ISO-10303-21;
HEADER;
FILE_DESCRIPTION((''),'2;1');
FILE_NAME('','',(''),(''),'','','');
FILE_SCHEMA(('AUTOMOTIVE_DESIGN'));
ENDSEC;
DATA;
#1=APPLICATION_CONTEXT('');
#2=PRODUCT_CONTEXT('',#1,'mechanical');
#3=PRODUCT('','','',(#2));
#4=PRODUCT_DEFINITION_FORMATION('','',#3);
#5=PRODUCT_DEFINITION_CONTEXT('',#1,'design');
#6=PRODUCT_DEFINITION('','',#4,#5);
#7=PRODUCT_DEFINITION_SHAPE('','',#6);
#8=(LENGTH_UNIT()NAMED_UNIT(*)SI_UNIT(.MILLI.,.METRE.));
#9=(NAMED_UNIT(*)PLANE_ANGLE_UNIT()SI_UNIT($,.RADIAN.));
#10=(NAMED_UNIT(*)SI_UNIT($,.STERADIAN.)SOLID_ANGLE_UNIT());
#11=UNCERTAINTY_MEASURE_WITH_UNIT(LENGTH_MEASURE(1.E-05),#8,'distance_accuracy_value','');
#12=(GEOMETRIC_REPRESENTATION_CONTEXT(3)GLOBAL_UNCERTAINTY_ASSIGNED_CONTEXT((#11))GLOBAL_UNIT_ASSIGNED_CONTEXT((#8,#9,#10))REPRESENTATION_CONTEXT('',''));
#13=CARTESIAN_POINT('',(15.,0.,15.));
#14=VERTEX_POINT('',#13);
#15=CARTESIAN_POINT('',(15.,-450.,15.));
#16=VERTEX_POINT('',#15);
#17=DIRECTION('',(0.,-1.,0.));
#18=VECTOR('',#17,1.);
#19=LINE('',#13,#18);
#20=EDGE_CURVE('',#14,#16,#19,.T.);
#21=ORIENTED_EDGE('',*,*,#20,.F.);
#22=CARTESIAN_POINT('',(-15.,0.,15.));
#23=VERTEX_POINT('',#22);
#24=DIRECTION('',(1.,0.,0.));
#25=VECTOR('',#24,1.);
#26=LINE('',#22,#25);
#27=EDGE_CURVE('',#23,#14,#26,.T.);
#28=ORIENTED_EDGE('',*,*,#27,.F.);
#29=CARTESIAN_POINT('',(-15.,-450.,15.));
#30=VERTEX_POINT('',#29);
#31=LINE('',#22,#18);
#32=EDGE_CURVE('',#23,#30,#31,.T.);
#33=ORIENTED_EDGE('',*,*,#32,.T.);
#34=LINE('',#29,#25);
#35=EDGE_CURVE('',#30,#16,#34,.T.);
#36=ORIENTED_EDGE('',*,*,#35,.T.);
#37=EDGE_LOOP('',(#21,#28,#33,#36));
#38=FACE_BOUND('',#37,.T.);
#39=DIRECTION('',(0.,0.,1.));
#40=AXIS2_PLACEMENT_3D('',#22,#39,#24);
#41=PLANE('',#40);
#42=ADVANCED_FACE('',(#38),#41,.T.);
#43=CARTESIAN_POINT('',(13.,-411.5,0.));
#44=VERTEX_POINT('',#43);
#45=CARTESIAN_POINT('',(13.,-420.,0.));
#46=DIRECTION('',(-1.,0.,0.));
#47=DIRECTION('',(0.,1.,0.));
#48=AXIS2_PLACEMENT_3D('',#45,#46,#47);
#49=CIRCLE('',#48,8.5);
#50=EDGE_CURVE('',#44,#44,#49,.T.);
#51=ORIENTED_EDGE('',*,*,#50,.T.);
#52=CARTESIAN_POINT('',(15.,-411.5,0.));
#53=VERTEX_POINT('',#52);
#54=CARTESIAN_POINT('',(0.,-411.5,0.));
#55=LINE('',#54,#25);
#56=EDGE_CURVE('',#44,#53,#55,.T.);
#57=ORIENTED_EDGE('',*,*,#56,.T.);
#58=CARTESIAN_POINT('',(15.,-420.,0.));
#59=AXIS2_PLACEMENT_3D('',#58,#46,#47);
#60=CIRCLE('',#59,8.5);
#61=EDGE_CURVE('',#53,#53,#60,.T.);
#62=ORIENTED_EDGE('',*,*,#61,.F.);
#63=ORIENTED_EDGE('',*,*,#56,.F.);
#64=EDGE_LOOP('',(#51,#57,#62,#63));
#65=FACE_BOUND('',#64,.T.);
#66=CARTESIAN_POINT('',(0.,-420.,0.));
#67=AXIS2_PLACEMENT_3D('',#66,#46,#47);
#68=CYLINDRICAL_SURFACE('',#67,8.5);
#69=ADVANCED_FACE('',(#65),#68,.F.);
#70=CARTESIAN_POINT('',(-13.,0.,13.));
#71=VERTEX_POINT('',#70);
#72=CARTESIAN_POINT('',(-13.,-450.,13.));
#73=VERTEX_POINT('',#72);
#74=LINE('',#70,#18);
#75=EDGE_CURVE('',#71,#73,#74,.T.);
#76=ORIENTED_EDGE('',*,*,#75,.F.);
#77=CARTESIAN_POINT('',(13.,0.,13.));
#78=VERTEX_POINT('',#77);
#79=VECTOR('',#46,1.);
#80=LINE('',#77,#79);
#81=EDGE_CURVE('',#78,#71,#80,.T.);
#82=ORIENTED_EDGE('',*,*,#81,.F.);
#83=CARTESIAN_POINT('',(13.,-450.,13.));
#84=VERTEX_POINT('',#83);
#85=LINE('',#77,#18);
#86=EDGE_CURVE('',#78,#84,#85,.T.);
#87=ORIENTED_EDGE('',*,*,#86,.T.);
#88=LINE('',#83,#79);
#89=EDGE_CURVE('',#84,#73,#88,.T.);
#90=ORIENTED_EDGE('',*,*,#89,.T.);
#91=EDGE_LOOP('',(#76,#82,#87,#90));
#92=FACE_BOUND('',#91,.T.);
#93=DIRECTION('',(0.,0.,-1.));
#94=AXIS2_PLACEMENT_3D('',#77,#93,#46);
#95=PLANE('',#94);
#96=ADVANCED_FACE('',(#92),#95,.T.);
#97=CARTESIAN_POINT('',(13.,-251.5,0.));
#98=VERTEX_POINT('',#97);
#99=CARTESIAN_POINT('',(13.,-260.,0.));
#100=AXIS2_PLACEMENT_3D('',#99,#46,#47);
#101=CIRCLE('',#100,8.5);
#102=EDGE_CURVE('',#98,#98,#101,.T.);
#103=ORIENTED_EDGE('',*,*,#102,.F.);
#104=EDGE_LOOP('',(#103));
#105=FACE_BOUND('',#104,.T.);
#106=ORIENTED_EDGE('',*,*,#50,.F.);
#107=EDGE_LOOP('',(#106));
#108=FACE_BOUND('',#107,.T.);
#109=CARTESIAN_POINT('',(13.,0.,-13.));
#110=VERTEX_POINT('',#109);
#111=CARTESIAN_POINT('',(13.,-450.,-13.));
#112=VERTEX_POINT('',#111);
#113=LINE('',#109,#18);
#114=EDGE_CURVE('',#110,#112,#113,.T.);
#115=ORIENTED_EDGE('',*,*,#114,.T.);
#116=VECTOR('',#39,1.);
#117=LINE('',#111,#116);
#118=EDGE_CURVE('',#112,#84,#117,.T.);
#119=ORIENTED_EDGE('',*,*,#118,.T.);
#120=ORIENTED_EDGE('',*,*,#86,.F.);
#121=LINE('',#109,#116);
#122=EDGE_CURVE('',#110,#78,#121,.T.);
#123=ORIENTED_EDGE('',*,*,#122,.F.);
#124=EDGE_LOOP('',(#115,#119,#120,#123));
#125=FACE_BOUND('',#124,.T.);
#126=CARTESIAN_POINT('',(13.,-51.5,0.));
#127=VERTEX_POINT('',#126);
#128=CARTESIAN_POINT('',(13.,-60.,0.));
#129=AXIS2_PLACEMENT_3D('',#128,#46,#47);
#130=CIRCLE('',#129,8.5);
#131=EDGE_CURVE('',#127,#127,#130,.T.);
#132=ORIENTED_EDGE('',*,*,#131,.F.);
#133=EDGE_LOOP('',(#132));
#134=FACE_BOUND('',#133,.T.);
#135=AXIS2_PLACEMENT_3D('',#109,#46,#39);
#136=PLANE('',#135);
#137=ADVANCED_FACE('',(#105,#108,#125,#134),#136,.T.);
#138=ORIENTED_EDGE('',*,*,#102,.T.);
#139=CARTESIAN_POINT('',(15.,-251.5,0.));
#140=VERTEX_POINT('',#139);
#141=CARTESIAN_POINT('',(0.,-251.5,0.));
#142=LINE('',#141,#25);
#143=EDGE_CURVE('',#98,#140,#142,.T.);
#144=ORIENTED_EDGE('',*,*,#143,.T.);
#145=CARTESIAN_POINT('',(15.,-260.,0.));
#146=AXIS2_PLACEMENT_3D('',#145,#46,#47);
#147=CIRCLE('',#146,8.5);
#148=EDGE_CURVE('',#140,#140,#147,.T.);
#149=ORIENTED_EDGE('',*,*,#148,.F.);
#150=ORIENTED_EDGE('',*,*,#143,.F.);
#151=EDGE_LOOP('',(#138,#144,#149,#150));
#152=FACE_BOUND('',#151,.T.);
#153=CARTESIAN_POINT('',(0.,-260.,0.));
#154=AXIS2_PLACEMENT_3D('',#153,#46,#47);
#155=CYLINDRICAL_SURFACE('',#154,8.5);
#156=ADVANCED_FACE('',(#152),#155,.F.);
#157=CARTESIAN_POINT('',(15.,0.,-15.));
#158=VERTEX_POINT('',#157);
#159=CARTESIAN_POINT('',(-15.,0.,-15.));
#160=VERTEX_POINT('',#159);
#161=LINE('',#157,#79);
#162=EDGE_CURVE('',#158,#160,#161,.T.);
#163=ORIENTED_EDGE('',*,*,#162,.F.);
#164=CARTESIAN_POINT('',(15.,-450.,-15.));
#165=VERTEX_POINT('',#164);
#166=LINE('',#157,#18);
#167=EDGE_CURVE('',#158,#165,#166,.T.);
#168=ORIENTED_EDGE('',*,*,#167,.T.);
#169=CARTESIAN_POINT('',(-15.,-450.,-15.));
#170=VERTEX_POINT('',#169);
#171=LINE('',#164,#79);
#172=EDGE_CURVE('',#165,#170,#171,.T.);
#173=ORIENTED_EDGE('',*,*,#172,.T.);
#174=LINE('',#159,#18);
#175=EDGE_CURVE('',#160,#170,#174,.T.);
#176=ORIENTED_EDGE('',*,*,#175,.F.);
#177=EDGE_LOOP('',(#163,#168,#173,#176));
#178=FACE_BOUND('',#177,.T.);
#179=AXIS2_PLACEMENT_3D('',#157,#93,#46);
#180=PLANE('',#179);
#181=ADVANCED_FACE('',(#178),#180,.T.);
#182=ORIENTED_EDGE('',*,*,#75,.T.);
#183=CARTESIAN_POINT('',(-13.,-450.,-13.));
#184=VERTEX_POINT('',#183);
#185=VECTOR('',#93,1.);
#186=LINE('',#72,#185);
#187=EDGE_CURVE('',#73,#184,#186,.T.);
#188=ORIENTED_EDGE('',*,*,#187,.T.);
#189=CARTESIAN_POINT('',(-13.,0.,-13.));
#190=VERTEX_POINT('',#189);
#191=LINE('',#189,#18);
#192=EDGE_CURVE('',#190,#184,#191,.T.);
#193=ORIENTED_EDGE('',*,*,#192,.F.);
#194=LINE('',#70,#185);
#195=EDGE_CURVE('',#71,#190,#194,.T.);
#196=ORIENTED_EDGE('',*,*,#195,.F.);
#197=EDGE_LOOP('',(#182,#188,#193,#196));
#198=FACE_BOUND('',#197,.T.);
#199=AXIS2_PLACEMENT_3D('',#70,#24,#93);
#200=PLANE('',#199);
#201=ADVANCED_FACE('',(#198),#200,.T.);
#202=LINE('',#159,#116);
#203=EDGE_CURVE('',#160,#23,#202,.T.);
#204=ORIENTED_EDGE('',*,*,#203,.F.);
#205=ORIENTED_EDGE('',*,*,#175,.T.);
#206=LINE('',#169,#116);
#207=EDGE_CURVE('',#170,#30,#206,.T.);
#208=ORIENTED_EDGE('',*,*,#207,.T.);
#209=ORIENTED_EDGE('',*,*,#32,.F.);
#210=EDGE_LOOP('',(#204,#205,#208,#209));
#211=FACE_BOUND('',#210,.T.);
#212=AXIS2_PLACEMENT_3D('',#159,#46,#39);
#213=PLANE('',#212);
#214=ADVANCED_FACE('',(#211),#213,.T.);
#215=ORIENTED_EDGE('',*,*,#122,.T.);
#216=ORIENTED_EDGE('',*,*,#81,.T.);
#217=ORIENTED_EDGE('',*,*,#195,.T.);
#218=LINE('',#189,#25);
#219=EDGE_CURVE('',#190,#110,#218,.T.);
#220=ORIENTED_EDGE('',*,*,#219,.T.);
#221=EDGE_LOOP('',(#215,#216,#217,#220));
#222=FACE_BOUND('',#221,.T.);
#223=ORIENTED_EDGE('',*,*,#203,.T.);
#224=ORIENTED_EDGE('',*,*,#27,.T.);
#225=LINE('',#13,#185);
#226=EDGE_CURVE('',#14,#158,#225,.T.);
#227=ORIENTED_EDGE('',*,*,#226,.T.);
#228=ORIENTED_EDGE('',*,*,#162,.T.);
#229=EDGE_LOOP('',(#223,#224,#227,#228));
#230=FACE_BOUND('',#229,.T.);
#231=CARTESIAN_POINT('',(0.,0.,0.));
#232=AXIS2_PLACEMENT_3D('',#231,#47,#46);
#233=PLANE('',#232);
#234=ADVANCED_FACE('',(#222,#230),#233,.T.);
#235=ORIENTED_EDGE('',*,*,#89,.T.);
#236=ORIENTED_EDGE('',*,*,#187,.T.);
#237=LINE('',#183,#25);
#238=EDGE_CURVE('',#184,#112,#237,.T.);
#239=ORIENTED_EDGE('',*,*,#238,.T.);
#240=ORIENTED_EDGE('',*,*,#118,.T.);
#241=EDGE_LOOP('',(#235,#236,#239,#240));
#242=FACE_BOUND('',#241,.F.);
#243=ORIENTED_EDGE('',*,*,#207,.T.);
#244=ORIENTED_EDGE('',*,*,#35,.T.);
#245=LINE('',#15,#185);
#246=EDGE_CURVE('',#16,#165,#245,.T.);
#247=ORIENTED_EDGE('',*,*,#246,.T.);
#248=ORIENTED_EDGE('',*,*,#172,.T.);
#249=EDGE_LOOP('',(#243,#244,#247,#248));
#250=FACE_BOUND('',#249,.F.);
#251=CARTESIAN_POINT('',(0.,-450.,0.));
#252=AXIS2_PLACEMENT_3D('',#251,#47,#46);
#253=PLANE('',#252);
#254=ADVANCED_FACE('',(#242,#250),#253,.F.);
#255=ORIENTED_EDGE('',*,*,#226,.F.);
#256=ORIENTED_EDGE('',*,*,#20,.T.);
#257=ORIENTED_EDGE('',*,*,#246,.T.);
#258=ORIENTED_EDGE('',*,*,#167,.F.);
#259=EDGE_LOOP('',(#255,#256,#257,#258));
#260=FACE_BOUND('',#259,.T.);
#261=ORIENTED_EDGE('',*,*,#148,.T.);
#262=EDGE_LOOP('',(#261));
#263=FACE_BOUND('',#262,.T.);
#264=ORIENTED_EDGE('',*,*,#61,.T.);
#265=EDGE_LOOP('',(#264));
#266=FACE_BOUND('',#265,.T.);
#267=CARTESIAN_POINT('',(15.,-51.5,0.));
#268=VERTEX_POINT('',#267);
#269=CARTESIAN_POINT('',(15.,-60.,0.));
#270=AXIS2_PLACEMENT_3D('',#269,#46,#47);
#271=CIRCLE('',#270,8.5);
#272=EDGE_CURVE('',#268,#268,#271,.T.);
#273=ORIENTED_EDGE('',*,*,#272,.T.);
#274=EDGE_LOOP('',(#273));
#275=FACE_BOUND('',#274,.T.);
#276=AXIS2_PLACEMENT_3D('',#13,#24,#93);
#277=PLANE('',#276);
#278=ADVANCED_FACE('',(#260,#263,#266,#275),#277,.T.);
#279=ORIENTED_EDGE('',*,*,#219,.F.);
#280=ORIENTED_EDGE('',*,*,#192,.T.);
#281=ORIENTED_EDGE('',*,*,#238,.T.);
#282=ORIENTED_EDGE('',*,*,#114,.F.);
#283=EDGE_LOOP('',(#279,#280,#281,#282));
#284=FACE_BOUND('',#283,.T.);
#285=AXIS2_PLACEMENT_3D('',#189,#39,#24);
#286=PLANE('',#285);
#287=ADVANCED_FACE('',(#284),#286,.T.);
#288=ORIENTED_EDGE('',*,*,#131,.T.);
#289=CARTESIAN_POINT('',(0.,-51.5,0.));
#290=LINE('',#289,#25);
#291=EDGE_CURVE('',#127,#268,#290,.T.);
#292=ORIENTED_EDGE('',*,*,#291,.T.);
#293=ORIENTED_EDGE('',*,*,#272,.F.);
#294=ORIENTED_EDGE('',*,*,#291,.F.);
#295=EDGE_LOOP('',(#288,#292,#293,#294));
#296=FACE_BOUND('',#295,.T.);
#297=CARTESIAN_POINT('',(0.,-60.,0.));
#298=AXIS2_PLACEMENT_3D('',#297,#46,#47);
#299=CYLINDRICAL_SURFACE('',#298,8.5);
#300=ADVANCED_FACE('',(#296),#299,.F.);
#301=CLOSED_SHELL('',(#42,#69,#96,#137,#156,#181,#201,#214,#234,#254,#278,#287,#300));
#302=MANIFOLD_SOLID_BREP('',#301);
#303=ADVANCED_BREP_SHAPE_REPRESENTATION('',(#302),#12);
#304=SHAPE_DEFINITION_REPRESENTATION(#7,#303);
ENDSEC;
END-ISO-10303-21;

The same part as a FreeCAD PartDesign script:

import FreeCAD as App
import Part
import Sketcher


def add_polygon(sketch, points):
    """Adds a closed chain of lines whose ends are joined by coincident constraints."""
    first, n = sketch.GeometryCount, len(points)
    for a, b in zip(points, points[1:] + points[:1]):
        sketch.addGeometry(Part.LineSegment(App.Vector(*a, 0), App.Vector(*b, 0)), False)
    for i in range(n):
        sketch.addConstraint(Sketcher.Constraint("Coincident", first + i, 2, first + (i + 1) % n, 1))

doc = App.newDocument("Part")
body = doc.addObject("PartDesign::Body", "Body")

sketch1 = body.newObject("Sketcher::SketchObject", "Sketch")
sketch1.AttachmentSupport = (doc.getObject("XZ_Plane"), [""])
sketch1.MapMode = "FlatFace"
add_polygon(sketch1, [(-15, -15), (-15, 15), (15, 15), (15, -15)])
add_polygon(sketch1, [(13, -13), (13, 13), (-13, 13), (-13, -13)])
sketch1.addConstraint([
    Sketcher.Constraint("Vertical", 0),
    Sketcher.Constraint("Horizontal", 1),
    Sketcher.Constraint("Vertical", 2),
    Sketcher.Constraint("Horizontal", 3),
    Sketcher.Constraint("Vertical", 4),
    Sketcher.Constraint("Horizontal", 5),
    Sketcher.Constraint("Vertical", 6),
    Sketcher.Constraint("Horizontal", 7),
    Sketcher.Constraint("Symmetric", 0, 2, 2, 2, -1, 1),
    Sketcher.Constraint("Symmetric", 4, 2, 6, 2, -1, 1),
    Sketcher.Constraint("Equal", 3, 0),
    Sketcher.Constraint("Equal", 7, 4),
    Sketcher.Constraint("DistanceX", 1, 1, 1, 2, 30.0),
    Sketcher.Constraint("DistanceX", 4, 2, 1, 2, 2.0),
])
pad1 = body.newObject("PartDesign::Pad", "Pad")
pad1.Profile = sketch1
pad1.Length = 450

sketch2 = body.newObject("Sketcher::SketchObject", "Sketch001")
sketch2.AttachmentSupport = (doc.getObject("YZ_Plane"), [""])
sketch2.MapMode = "FlatFace"
sketch2.addGeometry([
    Part.Circle(App.Vector(-60, 0, 0), App.Vector(0, 0, 1), 8),
    Part.Circle(App.Vector(-260, 0, 0), App.Vector(0, 0, 1), 8),
    Part.Circle(App.Vector(-420, 0, 0), App.Vector(0, 0, 1), 8),
], False)
sketch2.addConstraint([
    Sketcher.Constraint("Equal", 0, 1),
    Sketcher.Constraint("Equal", 1, 2),
    Sketcher.Constraint("PointOnObject", 0, 3, -1),
    Sketcher.Constraint("PointOnObject", 1, 3, -1),
    Sketcher.Constraint("PointOnObject", 2, 3, -1),
    Sketcher.Constraint("Diameter", 0, 17.0),
    Sketcher.Constraint("DistanceX", 0, 3, -1, 1, 60.0),
    Sketcher.Constraint("DistanceX", 1, 3, -1, 1, 260.0),
    Sketcher.Constraint("DistanceX", 2, 3, -1, 1, 420.0),
])
pocket1 = body.newObject("PartDesign::Pocket", "Pocket")
pocket1.Profile = sketch2
pocket1.Type = "ThroughAll"
pocket1.Reversed = True

doc.recompute()
